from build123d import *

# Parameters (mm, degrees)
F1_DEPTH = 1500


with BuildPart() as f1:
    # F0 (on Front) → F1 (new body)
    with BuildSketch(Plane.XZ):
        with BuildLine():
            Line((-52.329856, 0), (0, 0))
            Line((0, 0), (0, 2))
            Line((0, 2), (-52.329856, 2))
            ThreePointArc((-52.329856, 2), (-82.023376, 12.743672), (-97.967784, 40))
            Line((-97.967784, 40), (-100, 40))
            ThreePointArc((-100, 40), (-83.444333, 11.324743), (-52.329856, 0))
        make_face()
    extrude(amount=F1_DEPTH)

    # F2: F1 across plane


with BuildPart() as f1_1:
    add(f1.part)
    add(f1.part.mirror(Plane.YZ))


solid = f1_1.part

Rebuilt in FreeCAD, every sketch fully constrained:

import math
import FreeCAD as App
import Part
import Sketcher

V = App.Vector

doc = App.newDocument("Part")
body = doc.addObject("PartDesign::Body", "Body")

sketch1 = doc.addObject("Sketcher::SketchObject", "Sketch")
body.addObject(sketch1)
sketch1.AttachmentSupport = (doc.XZ_Plane, [""])
sketch1.MapMode = "FlatFace"
sketch1.addGeometry(Part.LineSegment(V(-52.3, 0, 0), V(0, 0, 0)), False)
sketch1.addGeometry(Part.LineSegment(V(0, 0, 0), V(0, 2, 0)), False)
sketch1.addGeometry(Part.LineSegment(V(0, 2, 0), V(-52.3, 2, 0)), False)
sketch1.addGeometry(Part.ArcOfCircle(Part.Circle(V(-52.3, 48.4, 0), V(0, 0, 1), 46.4), math.radians(-170), math.radians(-90)), False)
sketch1.addGeometry(Part.LineSegment(V(-98, 40, 0), V(-100, 40, 0)), False)
sketch1.addGeometry(Part.ArcOfCircle(Part.Circle(V(-52.3, 48.4, 0), V(0, 0, 1), 48.4), math.radians(-170), math.radians(-90)), False)
sketch1.addConstraint(Sketcher.Constraint("Coincident", 0, 2, 1, 1))
sketch1.addConstraint(Sketcher.Constraint("Coincident", 1, 2, 2, 1))
sketch1.addConstraint(Sketcher.Constraint("Tangent", 2, 2, 3, 2))
sketch1.addConstraint(Sketcher.Constraint("Coincident", 3, 1, 4, 1))
sketch1.addConstraint(Sketcher.Constraint("Coincident", 4, 2, 5, 1))
sketch1.addConstraint(Sketcher.Constraint("Tangent", 5, 2, 0, 1))
sketch1.addConstraint(Sketcher.Constraint("Horizontal", 0))
sketch1.addConstraint(Sketcher.Constraint("Vertical", 1))
sketch1.addConstraint(Sketcher.Constraint("Horizontal", 2))
sketch1.addConstraint(Sketcher.Constraint("Horizontal", 4))
sketch1.addConstraint(Sketcher.Constraint("Coincident", 0, 2, -1, 1))
sketch1.addConstraint(Sketcher.Constraint("Coincident", 5, 3, 3, 3))
sketch1.addConstraint(Sketcher.Constraint("DistanceY", 1, 1, 1, 2, 2.0))
sketch1.addConstraint(Sketcher.Constraint("DistanceY", -1, 1, 3, 1, 40.0))
sketch1.addConstraint(Sketcher.Constraint("DistanceX", 4, 2, -1, 1, 100.0))
sketch1.addConstraint(Sketcher.Constraint("Radius", 5, 48.405531))
pad1 = doc.addObject("PartDesign::Pad", "Pad")
body.addObject(pad1)
pad1.Profile = sketch1
pad1.Length = 1500
body2 = doc.addObject("PartDesign::Body", "Body001")
doc.recompute()

body2.BaseFeature = body
doc.recompute()

mirroring = doc.addObject("Part::Mirroring", "Mirroring")
mirroring.Source = body
mirroring.Base = V(0, 0, 0)
mirroring.Normal = V(1, 0, 0)
body3 = doc.addObject("PartDesign::Body", "Body002")
body3.BaseFeature = mirroring
boolean = doc.addObject("PartDesign::Boolean", "Boolean")
body2.addObject(boolean)
boolean.Type = "Fuse"
boolean.addObjects([body3])
doc.recompute()
mirroring.Visibility = False

doc.recompute()
